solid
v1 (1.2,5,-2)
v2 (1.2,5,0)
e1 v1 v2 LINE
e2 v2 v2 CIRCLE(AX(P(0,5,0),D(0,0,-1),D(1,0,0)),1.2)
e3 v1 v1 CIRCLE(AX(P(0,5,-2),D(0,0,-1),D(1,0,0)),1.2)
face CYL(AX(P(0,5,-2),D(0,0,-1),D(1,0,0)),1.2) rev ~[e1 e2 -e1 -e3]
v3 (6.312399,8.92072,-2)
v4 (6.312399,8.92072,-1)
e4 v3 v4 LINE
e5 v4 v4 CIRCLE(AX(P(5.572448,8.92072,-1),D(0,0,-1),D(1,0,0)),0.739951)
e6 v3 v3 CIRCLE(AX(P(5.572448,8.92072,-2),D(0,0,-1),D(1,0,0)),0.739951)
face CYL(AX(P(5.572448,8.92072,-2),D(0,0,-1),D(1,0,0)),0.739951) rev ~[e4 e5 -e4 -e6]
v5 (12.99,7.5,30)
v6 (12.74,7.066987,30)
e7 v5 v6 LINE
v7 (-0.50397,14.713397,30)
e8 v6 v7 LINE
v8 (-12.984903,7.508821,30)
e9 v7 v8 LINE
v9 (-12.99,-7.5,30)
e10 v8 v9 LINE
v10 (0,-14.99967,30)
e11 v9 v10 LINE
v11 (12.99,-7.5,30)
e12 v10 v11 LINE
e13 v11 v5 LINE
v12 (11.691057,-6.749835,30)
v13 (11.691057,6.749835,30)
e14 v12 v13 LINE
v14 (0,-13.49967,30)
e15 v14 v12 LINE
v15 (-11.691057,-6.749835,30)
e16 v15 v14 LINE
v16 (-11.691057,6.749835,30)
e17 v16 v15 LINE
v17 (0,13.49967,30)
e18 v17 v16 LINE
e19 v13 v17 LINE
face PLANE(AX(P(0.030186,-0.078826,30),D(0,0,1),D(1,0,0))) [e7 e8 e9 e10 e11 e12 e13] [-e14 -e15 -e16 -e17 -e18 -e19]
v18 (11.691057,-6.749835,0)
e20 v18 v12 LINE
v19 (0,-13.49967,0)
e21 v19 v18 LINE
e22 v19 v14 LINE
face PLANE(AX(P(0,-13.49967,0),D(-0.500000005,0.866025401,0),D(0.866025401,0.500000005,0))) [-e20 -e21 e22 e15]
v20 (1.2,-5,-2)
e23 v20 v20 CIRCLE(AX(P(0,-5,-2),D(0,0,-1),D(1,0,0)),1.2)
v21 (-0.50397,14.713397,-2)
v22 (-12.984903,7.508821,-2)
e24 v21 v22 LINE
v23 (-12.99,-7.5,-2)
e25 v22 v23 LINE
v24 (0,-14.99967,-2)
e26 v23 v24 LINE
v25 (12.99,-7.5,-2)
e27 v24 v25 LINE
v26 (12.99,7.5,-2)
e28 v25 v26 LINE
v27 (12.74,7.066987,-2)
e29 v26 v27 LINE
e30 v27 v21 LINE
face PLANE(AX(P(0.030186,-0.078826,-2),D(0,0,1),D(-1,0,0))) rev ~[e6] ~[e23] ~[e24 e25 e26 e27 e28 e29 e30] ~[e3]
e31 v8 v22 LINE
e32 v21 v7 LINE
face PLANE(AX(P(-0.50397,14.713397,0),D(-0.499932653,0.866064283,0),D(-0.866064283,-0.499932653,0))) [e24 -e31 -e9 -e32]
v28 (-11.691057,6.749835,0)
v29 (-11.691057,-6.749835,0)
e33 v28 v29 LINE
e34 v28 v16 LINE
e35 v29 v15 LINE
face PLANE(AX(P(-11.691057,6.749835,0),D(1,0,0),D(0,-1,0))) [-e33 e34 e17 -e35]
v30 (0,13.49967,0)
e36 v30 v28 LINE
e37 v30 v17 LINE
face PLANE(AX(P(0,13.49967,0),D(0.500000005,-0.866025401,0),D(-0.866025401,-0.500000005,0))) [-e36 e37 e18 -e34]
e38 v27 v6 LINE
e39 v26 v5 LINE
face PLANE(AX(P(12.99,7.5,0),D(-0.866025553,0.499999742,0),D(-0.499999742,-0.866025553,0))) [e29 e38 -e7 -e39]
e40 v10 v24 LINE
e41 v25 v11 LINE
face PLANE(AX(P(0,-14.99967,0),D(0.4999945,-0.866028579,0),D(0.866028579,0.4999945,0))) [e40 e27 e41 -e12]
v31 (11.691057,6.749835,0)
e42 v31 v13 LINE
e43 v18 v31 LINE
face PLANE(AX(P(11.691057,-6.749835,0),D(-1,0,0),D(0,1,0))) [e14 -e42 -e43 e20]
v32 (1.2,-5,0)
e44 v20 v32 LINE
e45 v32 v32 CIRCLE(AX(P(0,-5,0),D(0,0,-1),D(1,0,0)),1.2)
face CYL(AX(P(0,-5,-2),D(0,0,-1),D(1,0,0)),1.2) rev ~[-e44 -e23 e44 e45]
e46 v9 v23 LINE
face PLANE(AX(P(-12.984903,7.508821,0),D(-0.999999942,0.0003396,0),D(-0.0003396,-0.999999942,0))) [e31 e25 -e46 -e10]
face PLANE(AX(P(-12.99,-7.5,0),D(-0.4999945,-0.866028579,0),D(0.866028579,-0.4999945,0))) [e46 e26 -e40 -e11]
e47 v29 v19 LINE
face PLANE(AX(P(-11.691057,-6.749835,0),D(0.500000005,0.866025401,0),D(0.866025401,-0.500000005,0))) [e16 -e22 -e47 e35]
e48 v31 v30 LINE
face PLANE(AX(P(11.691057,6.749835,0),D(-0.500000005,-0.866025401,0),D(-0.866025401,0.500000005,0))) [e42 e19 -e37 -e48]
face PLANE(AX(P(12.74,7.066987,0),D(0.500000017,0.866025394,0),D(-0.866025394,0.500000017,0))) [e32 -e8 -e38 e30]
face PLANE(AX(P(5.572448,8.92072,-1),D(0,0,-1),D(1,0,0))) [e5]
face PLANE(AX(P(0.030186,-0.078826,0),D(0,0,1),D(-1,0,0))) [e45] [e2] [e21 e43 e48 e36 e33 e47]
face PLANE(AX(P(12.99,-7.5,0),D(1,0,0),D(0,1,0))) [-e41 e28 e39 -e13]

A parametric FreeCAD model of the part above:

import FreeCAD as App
import Part
import Sketcher
from FreeCAD import Vector
Q = App.Units.Quantity

doc = App.newDocument("Part")
body = doc.addObject("PartDesign::Body", "Body")

# Sketch on XY plane
sketch1 = body.newObject("Sketcher::SketchObject", "Sketch")
sketch1.AttachmentSupport = (doc.getObject("XY_Plane"), [""])
sketch1.MapMode = "FlatFace"
sketch1.addGeometry(Part.LineSegment(Vector(-0.5, 14.7, 0), Vector(-13, 7.5, 0)), False)
sketch1.addGeometry(Part.LineSegment(Vector(-13, 7.5, 0), Vector(-13, -7.5, 0)), False)
sketch1.addGeometry(Part.LineSegment(Vector(-13, -7.5, 0), Vector(0, -15, 0)), False)
sketch1.addGeometry(Part.LineSegment(Vector(0, -15, 0), Vector(13, -7.5, 0)), False)
sketch1.addGeometry(Part.LineSegment(Vector(13, -7.5, 0), Vector(13, 7.5, 0)), False)
sketch1.addGeometry(Part.LineSegment(Vector(13, 7.5, 0), Vector(12.7, 7.1, 0)), False)
sketch1.addGeometry(Part.LineSegment(Vector(12.7, 7.1, 0), Vector(-0.5, 14.7, 0)), False)
sketch1.addGeometry(Part.LineSegment(Vector(-11.7, 6.7, 0), Vector(0, 13.5, 0)), False)
sketch1.addGeometry(Part.LineSegment(Vector(0, 13.5, 0), Vector(11.7, 6.7, 0)), False)
sketch1.addGeometry(Part.LineSegment(Vector(11.7, 6.7, 0), Vector(11.7, -6.7, 0)), False)
sketch1.addGeometry(Part.LineSegment(Vector(11.7, -6.7, 0), Vector(0, -13.5, 0)), False)
sketch1.addGeometry(Part.LineSegment(Vector(0, -13.5, 0), Vector(-11.7, -6.7, 0)), False)
sketch1.addGeometry(Part.LineSegment(Vector(-11.7, -6.7, 0), Vector(-11.7, 6.7, 0)), False)
sketch1.addConstraint(Sketcher.Constraint("Coincident", 0, 2, 1, 1))
sketch1.addConstraint(Sketcher.Constraint("Coincident", 1, 2, 2, 1))
sketch1.addConstraint(Sketcher.Constraint("Coincident", 2, 2, 3, 1))
sketch1.addConstraint(Sketcher.Constraint("Coincident", 3, 2, 4, 1))
sketch1.addConstraint(Sketcher.Constraint("Coincident", 4, 2, 5, 1))
sketch1.addConstraint(Sketcher.Constraint("Coincident", 5, 2, 6, 1))
sketch1.addConstraint(Sketcher.Constraint("Coincident", 6, 2, 0, 1))
sketch1.addConstraint(Sketcher.Constraint("Coincident", 7, 2, 8, 1))
sketch1.addConstraint(Sketcher.Constraint("Coincident", 8, 2, 9, 1))
sketch1.addConstraint(Sketcher.Constraint("Coincident", 9, 2, 10, 1))
sketch1.addConstraint(Sketcher.Constraint("Coincident", 10, 2, 11, 1))
sketch1.addConstraint(Sketcher.Constraint("Coincident", 11, 2, 12, 1))
sketch1.addConstraint(Sketcher.Constraint("Coincident", 12, 2, 7, 1))
sketch1.addConstraint(Sketcher.Constraint("Vertical", 4))
sketch1.addConstraint(Sketcher.Constraint("Vertical", 9))
sketch1.addConstraint(Sketcher.Constraint("Vertical", 12))
sketch1.addConstraint(Sketcher.Constraint("Symmetric", 1, 2, 4, 2, -1, 1))
sketch1.addConstraint(Sketcher.Constraint("Symmetric", 7, 2, 10, 2, -1, 1))
sketch1.addConstraint(Sketcher.Constraint("Symmetric", 8, 2, 11, 2, -1, 1))
sketch1.addConstraint(Sketcher.Constraint("PointOnObject", 2, 2, -2))
sketch1.addConstraint(Sketcher.Constraint("PointOnObject", 7, 2, -2))
sketch1.addConstraint(Sketcher.Constraint("Perpendicular", 5, 6))
sketch1.addConstraint(Sketcher.Constraint("Parallel", 6, 8))
sketch1.addConstraint(Sketcher.Constraint("Parallel", 7, 10))
sketch1.addConstraint(Sketcher.Constraint("Horizontal", 1, 2, 3, 2))
sketch1.addConstraint(Sketcher.Constraint("Horizontal", 9, 2, 11, 2))
sketch1.addConstraint(Sketcher.Constraint("DistanceY", 4, 1, 4, 2, Q("15 mm")))
sketch1.addConstraint(Sketcher.Constraint("Angle", 5, Q("-119.999983 deg")))
sketch1.addConstraint(Sketcher.Constraint("Distance", 5, Q("0.5 mm")))
sketch1.addConstraint(Sketcher.Constraint("DistanceY", 2, 2, 10, 2, Q("1.5 mm")))
sketch1.addConstraint(Sketcher.Constraint("DistanceX", 1, 2, -1, 1, Q("12.99 mm")))
sketch1.addConstraint(Sketcher.Constraint("DistanceY", 9, 2, 9, 1, Q("13.49967 mm")))
sketch1.addConstraint(Sketcher.Constraint("Distance", 1, Q("15.008822 mm")))
sketch1.addConstraint(Sketcher.Constraint("Distance", 6, Q("15.292819 mm")))
sketch1.addConstraint(Sketcher.Constraint("Distance", 7, Q("13.49967 mm")))
sketch1.addConstraint(Sketcher.Constraint("Distance", 0, Q("14.411093 mm")))
pad1 = body.newObject("PartDesign::Pad", "Pad")
pad1.Profile = sketch1
pad1.Length = 30

# Sketch on XY plane
sketch2 = body.newObject("Sketcher::SketchObject", "Sketch001")
sketch2.AttachmentSupport = (doc.getObject("XY_Plane"), [""])
sketch2.MapMode = "FlatFace"
sketch2.addGeometry(Part.LineSegment(Vector(13, -7.5, 0), Vector(0, -15, 0)), False)
sketch2.addGeometry(Part.LineSegment(Vector(0, -15, 0), Vector(-13, -7.5, 0)), False)
sketch2.addGeometry(Part.LineSegment(Vector(-13, -7.5, 0), Vector(-13, 7.5, 0)), False)
sketch2.addGeometry(Part.LineSegment(Vector(-13, 7.5, 0), Vector(-0.5, 14.7, 0)), False)
sketch2.addGeometry(Part.LineSegment(Vector(-0.5, 14.7, 0), Vector(12.7, 7.1, 0)), False)
sketch2.addGeometry(Part.LineSegment(Vector(12.7, 7.1, 0), Vector(13, 7.5, 0)), False)
sketch2.addGeometry(Part.LineSegment(Vector(13, 7.5, 0), Vector(13, -7.5, 0)), False)
sketch2.addConstraint(Sketcher.Constraint("Coincident", 0, 2, 1, 1))
sketch2.addConstraint(Sketcher.Constraint("Coincident", 1, 2, 2, 1))
sketch2.addConstraint(Sketcher.Constraint("Coincident", 2, 2, 3, 1))
sketch2.addConstraint(Sketcher.Constraint("Coincident", 3, 2, 4, 1))
sketch2.addConstraint(Sketcher.Constraint("Coincident", 4, 2, 5, 1))
sketch2.addConstraint(Sketcher.Constraint("Coincident", 5, 2, 6, 1))
sketch2.addConstraint(Sketcher.Constraint("Coincident", 6, 2, 0, 1))
sketch2.addConstraint(Sketcher.Constraint("Vertical", 6))
sketch2.addConstraint(Sketcher.Constraint("Symmetric", 1, 2, 5, 2, -1, 1))
sketch2.addConstraint(Sketcher.Constraint("PointOnObject", 0, 2, -2))
sketch2.addConstraint(Sketcher.Constraint("Perpendicular", 4, 5))
sketch2.addConstraint(Sketcher.Constraint("Horizontal", 1, 2, 6, 2))
sketch2.addConstraint(Sketcher.Constraint("DistanceY", 6, 2, 6, 1, Q("15 mm")))
sketch2.addConstraint(Sketcher.Constraint("Angle", 4, Q("-30.000001 deg")))
sketch2.addConstraint(Sketcher.Constraint("Distance", 5, Q("0.5 mm")))
sketch2.addConstraint(Sketcher.Constraint("DistanceX", 1, 2, -1, 1, Q("12.99 mm")))
sketch2.addConstraint(Sketcher.Constraint("Distance", 2, Q("15.008822 mm")))
sketch2.addConstraint(Sketcher.Constraint("Distance", 4, Q("15.292819 mm")))
sketch2.addConstraint(Sketcher.Constraint("DistanceY", 0, 2, -1, 1, Q("14.99967 mm")))
sketch2.addConstraint(Sketcher.Constraint("Distance", 3, Q("14.411093 mm")))
pad2 = body.newObject("PartDesign::Pad", "Pad001")
pad2.Profile = sketch2
pad2.Length = 2
pad2.Reversed = True

# Sketch on XY plane
sketch3 = body.newObject("Sketcher::SketchObject", "Sketch002")
sketch3.AttachmentSupport = (doc.getObject("XY_Plane"), [""])
sketch3.MapMode = "FlatFace"
sketch3.AttachmentOffset = App.Placement(Vector(0, 0, -2), App.Rotation())
sketch3.addGeometry(Part.Circle(Vector(5.6, 8.9, 0), Vector(0, 0, 1), 0.7), False)
sketch3.addConstraint(Sketcher.Constraint("Diameter", 0, Q("1.479902 mm")))
sketch3.addConstraint(Sketcher.Constraint("DistanceY", -1, 1, 0, 3, Q("8.92072 mm")))
sketch3.addConstraint(Sketcher.Constraint("DistanceX", -1, 1, 0, 3, Q("5.572448 mm")))
pocket1 = body.newObject("PartDesign::Pocket", "Pocket")
pocket1.Profile = sketch3
pocket1.Length = 1
pocket1.Reversed = True

# Sketch on XY plane
sketch4 = body.newObject("Sketcher::SketchObject", "Sketch003")
sketch4.AttachmentSupport = (doc.getObject("XY_Plane"), [""])
sketch4.MapMode = "FlatFace"
sketch4.AttachmentOffset = App.Placement(Vector(0, 0, -2), App.Rotation())
sketch4.addGeometry(Part.Circle(Vector(0, -5, 0), Vector(0, 0, 1), 1.2), False)
sketch4.addGeometry(Part.Circle(Vector(0, 5, 0), Vector(0, 0, 1), 1.2), False)
sketch4.addConstraint(Sketcher.Constraint("Equal", 0, 1))
sketch4.addConstraint(Sketcher.Constraint("Symmetric", 0, 3, 1, 3, -1, 1))
sketch4.addConstraint(Sketcher.Constraint("PointOnObject", 0, 3, -2))
sketch4.addConstraint(Sketcher.Constraint("Diameter", 0, Q("2.4 mm")))
sketch4.addConstraint(Sketcher.Constraint("DistanceY", 0, 3, -1, 1, Q("5 mm")))
pocket2 = body.newObject("PartDesign::Pocket", "Pocket001")
pocket2.Profile = sketch4
pocket2.Length = 5
pocket2.Reversed = True

doc.recompute()
